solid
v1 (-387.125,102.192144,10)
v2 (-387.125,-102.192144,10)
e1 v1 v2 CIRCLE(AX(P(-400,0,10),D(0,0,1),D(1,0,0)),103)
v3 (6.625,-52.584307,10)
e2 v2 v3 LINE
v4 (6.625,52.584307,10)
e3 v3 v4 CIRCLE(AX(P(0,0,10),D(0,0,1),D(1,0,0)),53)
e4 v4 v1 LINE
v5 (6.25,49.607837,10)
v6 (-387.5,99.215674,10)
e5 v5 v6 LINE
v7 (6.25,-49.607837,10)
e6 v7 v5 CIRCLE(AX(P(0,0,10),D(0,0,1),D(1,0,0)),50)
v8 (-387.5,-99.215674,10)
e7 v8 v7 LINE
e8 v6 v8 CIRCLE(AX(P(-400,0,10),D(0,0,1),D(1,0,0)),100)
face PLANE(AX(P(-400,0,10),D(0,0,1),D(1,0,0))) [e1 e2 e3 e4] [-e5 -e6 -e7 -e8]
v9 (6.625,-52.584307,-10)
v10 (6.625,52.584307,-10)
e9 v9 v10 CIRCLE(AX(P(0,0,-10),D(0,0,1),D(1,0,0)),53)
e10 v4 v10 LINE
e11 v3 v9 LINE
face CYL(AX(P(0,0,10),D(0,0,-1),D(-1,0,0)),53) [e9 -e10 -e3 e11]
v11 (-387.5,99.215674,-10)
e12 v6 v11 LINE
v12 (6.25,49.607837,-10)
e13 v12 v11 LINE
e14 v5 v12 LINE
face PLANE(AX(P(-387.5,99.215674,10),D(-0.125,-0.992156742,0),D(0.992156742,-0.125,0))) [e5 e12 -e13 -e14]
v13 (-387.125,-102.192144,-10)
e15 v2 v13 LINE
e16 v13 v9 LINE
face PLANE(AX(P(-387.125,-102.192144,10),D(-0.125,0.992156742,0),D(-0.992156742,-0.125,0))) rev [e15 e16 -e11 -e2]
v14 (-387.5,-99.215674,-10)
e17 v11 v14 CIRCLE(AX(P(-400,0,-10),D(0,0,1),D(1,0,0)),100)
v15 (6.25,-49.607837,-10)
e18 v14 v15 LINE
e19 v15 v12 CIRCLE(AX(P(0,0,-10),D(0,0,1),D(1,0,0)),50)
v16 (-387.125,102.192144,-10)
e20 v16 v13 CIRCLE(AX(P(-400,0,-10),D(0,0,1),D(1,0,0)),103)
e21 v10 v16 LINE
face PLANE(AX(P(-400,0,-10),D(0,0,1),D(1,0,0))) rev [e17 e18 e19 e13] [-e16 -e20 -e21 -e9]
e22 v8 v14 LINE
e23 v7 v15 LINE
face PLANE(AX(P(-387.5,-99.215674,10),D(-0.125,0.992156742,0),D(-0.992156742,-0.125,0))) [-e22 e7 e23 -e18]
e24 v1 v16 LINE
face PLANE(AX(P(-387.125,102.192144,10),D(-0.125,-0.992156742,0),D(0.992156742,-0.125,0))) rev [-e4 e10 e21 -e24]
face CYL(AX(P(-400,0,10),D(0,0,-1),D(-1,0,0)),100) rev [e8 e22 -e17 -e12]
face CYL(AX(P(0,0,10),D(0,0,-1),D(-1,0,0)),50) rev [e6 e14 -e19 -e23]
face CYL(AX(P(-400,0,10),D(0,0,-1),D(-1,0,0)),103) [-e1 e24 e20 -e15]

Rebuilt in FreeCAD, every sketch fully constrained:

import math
import FreeCAD as App
import Part
import Sketcher
from FreeCAD import Vector

doc = App.newDocument("Part")
body = doc.addObject("PartDesign::Body", "Body")

sketch1 = body.newObject("Sketcher::SketchObject", "Sketch")
sketch1.AttachmentSupport = (doc.getObject("XY_Plane"), [""])
sketch1.MapMode = "FlatFace"
sketch1.addGeometry([
    Part.LineSegment(Vector(-387, -102, 0), Vector(7, -53, 0)),
    Part.ArcOfCircle(Part.Circle(Vector(0, 0, 0), Vector(0, 0, 1), 53), math.radians(-83), math.radians(83)),
    Part.LineSegment(Vector(7, 53, 0), Vector(-387, 102, 0)),
    Part.ArcOfCircle(Part.Circle(Vector(-400, 0, 0), Vector(0, 0, 1), 103), math.radians(83), math.radians(277)),
    Part.LineSegment(Vector(6, -50, 0), Vector(-388, -99, 0)),
    Part.ArcOfCircle(Part.Circle(Vector(-400, 0, 0), Vector(0, 0, 1), 100), math.radians(83), math.radians(277)),
    Part.LineSegment(Vector(-388, 99, 0), Vector(6, 50, 0)),
    Part.ArcOfCircle(Part.Circle(Vector(0, 0, 0), Vector(0, 0, 1), 50), math.radians(-83), math.radians(83)),
], False)
sketch1.addConstraint([
    Sketcher.Constraint("Tangent", 0, 2, 1, 1),
    Sketcher.Constraint("Tangent", 1, 2, 2, 1),
    Sketcher.Constraint("Tangent", 2, 2, 3, 1),
    Sketcher.Constraint("Tangent", 3, 2, 0, 1),
    Sketcher.Constraint("Tangent", 4, 2, 5, 2),
    Sketcher.Constraint("Tangent", 5, 1, 6, 1),
    Sketcher.Constraint("Tangent", 6, 2, 7, 2),
    Sketcher.Constraint("Tangent", 7, 1, 4, 1),
    Sketcher.Constraint("Coincident", 1, 3, -1, 1),
    Sketcher.Constraint("Coincident", 7, 3, -1, 1),
    Sketcher.Constraint("Coincident", 5, 3, 3, 3),
    Sketcher.Constraint("PointOnObject", 3, 3, -1),
    Sketcher.Constraint("Parallel", 0, 4),
    Sketcher.Constraint("Radius", 1, 53.0),
    Sketcher.Constraint("Radius", 3, 103.0),
    Sketcher.Constraint("Radius", 5, 100.0),
    Sketcher.Constraint("DistanceX", 3, 3, -1, 1, 400.0),
])
pad1 = body.newObject("PartDesign::Pad", "Pad")
pad1.Profile = sketch1
pad1.Length = 20
pad1.Midplane = True

doc.recompute()
